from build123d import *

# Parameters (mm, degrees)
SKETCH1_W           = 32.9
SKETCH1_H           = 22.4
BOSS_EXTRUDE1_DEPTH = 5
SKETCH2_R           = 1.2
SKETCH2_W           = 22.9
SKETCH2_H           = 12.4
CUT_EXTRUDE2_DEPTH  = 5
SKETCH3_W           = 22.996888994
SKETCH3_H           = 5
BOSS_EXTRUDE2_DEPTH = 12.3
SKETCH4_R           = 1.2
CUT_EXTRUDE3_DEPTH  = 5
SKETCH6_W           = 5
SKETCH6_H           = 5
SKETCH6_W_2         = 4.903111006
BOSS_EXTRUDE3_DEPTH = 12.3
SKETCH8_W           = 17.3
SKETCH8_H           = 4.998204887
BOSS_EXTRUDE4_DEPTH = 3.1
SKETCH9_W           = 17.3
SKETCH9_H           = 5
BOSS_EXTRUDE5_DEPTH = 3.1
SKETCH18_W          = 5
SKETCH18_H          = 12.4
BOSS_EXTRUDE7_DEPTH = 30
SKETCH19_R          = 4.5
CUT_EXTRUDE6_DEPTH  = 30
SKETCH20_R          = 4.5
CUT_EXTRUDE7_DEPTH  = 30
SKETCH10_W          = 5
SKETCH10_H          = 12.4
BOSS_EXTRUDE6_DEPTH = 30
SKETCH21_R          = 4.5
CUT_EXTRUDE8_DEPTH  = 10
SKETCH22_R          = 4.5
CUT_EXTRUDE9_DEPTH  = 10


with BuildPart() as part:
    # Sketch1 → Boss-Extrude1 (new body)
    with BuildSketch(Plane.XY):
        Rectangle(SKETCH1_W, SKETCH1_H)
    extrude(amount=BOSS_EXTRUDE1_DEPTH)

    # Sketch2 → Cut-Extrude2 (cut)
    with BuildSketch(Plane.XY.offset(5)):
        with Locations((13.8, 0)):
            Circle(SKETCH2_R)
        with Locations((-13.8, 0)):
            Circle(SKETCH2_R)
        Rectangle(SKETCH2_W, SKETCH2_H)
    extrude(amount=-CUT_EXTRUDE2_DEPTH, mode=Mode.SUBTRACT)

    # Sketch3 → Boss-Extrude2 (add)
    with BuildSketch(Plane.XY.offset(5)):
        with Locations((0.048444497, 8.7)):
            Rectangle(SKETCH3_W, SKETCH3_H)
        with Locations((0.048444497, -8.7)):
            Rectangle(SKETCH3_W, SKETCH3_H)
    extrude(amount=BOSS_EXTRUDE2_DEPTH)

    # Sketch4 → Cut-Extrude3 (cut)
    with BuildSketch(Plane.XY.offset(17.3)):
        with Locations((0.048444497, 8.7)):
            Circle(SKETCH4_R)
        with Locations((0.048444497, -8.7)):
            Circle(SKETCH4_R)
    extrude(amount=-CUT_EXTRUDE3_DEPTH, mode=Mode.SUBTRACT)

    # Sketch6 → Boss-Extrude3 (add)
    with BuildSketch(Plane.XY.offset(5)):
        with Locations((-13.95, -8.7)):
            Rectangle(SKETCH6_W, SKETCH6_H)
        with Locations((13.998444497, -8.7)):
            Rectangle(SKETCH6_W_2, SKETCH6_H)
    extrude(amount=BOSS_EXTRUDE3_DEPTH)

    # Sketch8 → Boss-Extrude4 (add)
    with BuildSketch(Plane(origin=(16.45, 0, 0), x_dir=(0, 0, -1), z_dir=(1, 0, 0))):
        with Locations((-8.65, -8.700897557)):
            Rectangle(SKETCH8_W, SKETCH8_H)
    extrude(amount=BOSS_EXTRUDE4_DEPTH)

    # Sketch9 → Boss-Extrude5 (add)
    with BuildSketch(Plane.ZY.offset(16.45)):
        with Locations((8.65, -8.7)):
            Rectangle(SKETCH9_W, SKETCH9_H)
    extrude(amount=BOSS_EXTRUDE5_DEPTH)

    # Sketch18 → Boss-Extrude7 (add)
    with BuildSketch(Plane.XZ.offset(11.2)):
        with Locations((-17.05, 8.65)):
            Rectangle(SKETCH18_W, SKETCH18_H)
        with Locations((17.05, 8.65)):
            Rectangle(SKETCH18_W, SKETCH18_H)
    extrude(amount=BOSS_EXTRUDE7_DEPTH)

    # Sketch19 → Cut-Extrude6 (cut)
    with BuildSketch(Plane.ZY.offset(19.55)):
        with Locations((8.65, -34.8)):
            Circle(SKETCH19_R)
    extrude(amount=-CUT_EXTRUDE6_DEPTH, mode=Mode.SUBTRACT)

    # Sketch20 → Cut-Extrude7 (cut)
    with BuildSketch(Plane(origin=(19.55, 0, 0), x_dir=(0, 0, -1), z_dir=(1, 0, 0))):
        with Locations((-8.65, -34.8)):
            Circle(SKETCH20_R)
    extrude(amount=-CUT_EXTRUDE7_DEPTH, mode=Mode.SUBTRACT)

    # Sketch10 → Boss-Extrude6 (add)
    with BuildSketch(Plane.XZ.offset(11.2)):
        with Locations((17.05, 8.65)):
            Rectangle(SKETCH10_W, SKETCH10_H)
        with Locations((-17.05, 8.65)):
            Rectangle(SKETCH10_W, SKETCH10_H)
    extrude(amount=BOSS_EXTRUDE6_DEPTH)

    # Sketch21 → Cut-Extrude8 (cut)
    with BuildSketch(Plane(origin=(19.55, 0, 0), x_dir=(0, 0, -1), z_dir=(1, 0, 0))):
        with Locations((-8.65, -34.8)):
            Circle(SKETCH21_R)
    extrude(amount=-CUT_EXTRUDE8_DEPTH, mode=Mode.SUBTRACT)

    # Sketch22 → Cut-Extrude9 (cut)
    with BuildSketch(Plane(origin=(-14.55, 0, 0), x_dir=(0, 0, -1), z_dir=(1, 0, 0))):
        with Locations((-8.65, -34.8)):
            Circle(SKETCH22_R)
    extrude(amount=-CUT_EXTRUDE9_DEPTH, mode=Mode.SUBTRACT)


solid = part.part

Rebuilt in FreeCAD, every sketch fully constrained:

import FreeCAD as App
import Part
import Sketcher


def add_polygon(sketch, points):
    """Adds a closed chain of lines whose ends are joined by coincident constraints."""
    first, n = sketch.GeometryCount, len(points)
    for a, b in zip(points, points[1:] + points[:1]):
        sketch.addGeometry(Part.LineSegment(App.Vector(*a, 0), App.Vector(*b, 0)), False)
    for i in range(n):
        sketch.addConstraint(Sketcher.Constraint("Coincident", first + i, 2, first + (i + 1) % n, 1))

doc = App.newDocument("Part")
params = doc.addObject("Spreadsheet::Sheet", "Params")
for row, (alias, value) in enumerate([
    ("sketch1_width", "32.9 mm"),
    ("sketch1_height", "22.4 mm"),
    ("pad1_length", "5 mm"),
    ("sketch2_diameter", "2.4 mm"),
    ("sketch2_width", "22.9 mm"),
    ("sketch2_height", "12.4 mm"),
    ("pocket1_length", "5 mm"),
    ("sketch3_height", "5 mm"),
    ("pad2_length", "12.3 mm"),
    ("sketch4_diameter", "2.4 mm"),
    ("pocket2_length", "5 mm"),
    ("sketch5_width", "5 mm"),
    ("pad3_length", "12.3 mm"),
    ("sketch6_height", "17.3 mm"),
    ("pad4_length", "3.1 mm"),
    ("sketch7_width", "5 mm"),
    ("sketch7_height", "17.3 mm"),
    ("pad5_length", "3.1 mm"),
    ("sketch8_width", "5 mm"),
    ("sketch8_height", "12.4 mm"),
    ("pad6_length", "30 mm"),
    ("sketch9_diameter", "9 mm"),
    ("pocket3_length", "30 mm"),
    ("sketch10_diameter", "9 mm"),
    ("pocket4_length", "30 mm"),
    ("sketch11_width", "5 mm"),
    ("sketch11_height", "12.4 mm"),
    ("pad7_length", "30 mm"),
    ("sketch12_diameter", "9 mm"),
    ("pocket5_length", "10 mm"),
    ("sketch13_diameter", "9 mm"),
    ("pocket6_length", "10 mm"),
], start=1):
    params.set(f"A{row}", alias)
    params.set(f"B{row}", "=" + value)
    params.setAlias(f"B{row}", alias)

body = doc.addObject("PartDesign::Body", "Body")

# Sketch on XY plane
sketch1 = body.newObject("Sketcher::SketchObject", "Sketch")
sketch1.AttachmentSupport = (doc.getObject("XY_Plane"), [""])
sketch1.MapMode = "FlatFace"
add_polygon(sketch1, [(-16.45, 11.2), (-16.45, -11.2), (16.45, -11.2), (16.45, 11.2)])  # lines 0-3
sketch1.addConstraint([
    Sketcher.Constraint("Vertical", 0),
    Sketcher.Constraint("Horizontal", 1),
    Sketcher.Constraint("Vertical", 2),
    Sketcher.Constraint("Horizontal", 3),
    Sketcher.Constraint("Symmetric", 0, 2, 2, 2, -1, 1),
    Sketcher.Constraint("DistanceX", 1, 1, 1, 2, 32.9),
    Sketcher.Constraint("DistanceY", 0, 2, 0, 1, 22.4),
])
sketch1.setExpression("Constraints[9]", "Params.sketch1_width")
sketch1.setExpression("Constraints[10]", "Params.sketch1_height")
pad1 = body.newObject("PartDesign::Pad", "Pad")
pad1.Profile = sketch1
pad1.setExpression("Length", "Params.pad1_length")

# Sketch on XY plane
sketch2 = body.newObject("Sketcher::SketchObject", "Sketch001")
sketch2.AttachmentSupport = (doc.getObject("XY_Plane"), [""])
sketch2.MapMode = "FlatFace"
sketch2.AttachmentOffset = App.Placement(App.Vector(0, 0, 5), App.Rotation())
sketch2.addGeometry(Part.Circle(App.Vector(13.8, 0, 0), App.Vector(0, 0, 1), 1.2), False)  # 0
sketch2.addGeometry(Part.Circle(App.Vector(-13.8, 0, 0), App.Vector(0, 0, 1), 1.2), False)  # 1
add_polygon(sketch2, [(-11.45, 6.2), (-11.45, -6.2), (11.45, -6.2), (11.45, 6.2)])  # lines 2-5
sketch2.addConstraint([
    Sketcher.Constraint("Vertical", 2),
    Sketcher.Constraint("Horizontal", 3),
    Sketcher.Constraint("Vertical", 4),
    Sketcher.Constraint("Horizontal", 5),
    Sketcher.Constraint("Equal", 0, 1),
    Sketcher.Constraint("Symmetric", 0, 3, 1, 3, -1, 1),
    Sketcher.Constraint("Symmetric", 2, 2, 4, 2, -1, 1),
    Sketcher.Constraint("PointOnObject", 0, 3, -1),
    Sketcher.Constraint("Diameter", 0, 2.4),
    Sketcher.Constraint("DistanceX", 3, 1, 3, 2, 22.9),
    Sketcher.Constraint("DistanceY", 2, 2, 2, 1, 12.4),
    Sketcher.Constraint("DistanceX", -1, 1, 0, 3, 13.8),
])
sketch2.setExpression("Constraints[12]", "Params.sketch2_diameter")
sketch2.setExpression("Constraints[13]", "Params.sketch2_width")
sketch2.setExpression("Constraints[14]", "Params.sketch2_height")
pocket1 = body.newObject("PartDesign::Pocket", "Pocket")
pocket1.Profile = sketch2
pocket1.setExpression("Length", "Params.pocket1_length")

# Sketch on XY plane
sketch3 = body.newObject("Sketcher::SketchObject", "Sketch002")
sketch3.AttachmentSupport = (doc.getObject("XY_Plane"), [""])
sketch3.MapMode = "FlatFace"
sketch3.AttachmentOffset = App.Placement(App.Vector(0, 0, 5), App.Rotation())
add_polygon(sketch3, [(-11.45, 11.2), (-11.45, 6.2), (11.546889, 6.2), (11.546889, 11.2)])  # lines 0-3
add_polygon(sketch3, [(-11.45, -6.2), (-11.45, -11.2), (11.546889, -11.2), (11.546889, -6.2)])  # lines 4-7
sketch3.addConstraint([
    Sketcher.Constraint("Vertical", 0),
    Sketcher.Constraint("Horizontal", 1),
    Sketcher.Constraint("Vertical", 2),
    Sketcher.Constraint("Horizontal", 3),
    Sketcher.Constraint("Vertical", 4),
    Sketcher.Constraint("Horizontal", 5),
    Sketcher.Constraint("Vertical", 6),
    Sketcher.Constraint("Horizontal", 7),
    Sketcher.Constraint("Symmetric", 3, 2, 4, 2, -1),
    Sketcher.Constraint("Symmetric", 1, 2, 6, 2, -1),
    Sketcher.Constraint("DistanceY", 0, 2, 0, 1, 5.0),
    Sketcher.Constraint("DistanceY", -1, 1, 0, 2, 6.2),
    Sketcher.Constraint("DistanceX", 0, 2, -1, 1, 11.45),
    Sketcher.Constraint("DistanceX", 1, 1, 1, 2, 22.996889),
])
sketch3.setExpression("Constraints[18]", "Params.sketch3_height")
pad2 = body.newObject("PartDesign::Pad", "Pad001")
pad2.Profile = sketch3
pad2.setExpression("Length", "Params.pad2_length")

# Sketch on XY plane
sketch4 = body.newObject("Sketcher::SketchObject", "Sketch003")
sketch4.AttachmentSupport = (doc.getObject("XY_Plane"), [""])
sketch4.MapMode = "FlatFace"
sketch4.AttachmentOffset = App.Placement(App.Vector(0, 0, 17.3), App.Rotation())
sketch4.addGeometry([
    Part.Circle(App.Vector(0.048444, 8.7, 0), App.Vector(0, 0, 1), 1.2),
    Part.Circle(App.Vector(0.048444, -8.7, 0), App.Vector(0, 0, 1), 1.2),
], False)
sketch4.addConstraint([
    Sketcher.Constraint("Equal", 0, 1),
    Sketcher.Constraint("Symmetric", 0, 3, 1, 3, -1),
    Sketcher.Constraint("Diameter", 0, 2.4),
    Sketcher.Constraint("DistanceY", -1, 1, 0, 3, 8.7),
    Sketcher.Constraint("DistanceX", -1, 1, 0, 3, 0.048444),
])
sketch4.setExpression("Constraints[2]", "Params.sketch4_diameter")
pocket2 = body.newObject("PartDesign::Pocket", "Pocket001")
pocket2.Profile = sketch4
pocket2.setExpression("Length", "Params.pocket2_length")

# Sketch on XY plane
sketch5 = body.newObject("Sketcher::SketchObject", "Sketch004")
sketch5.AttachmentSupport = (doc.getObject("XY_Plane"), [""])
sketch5.MapMode = "FlatFace"
sketch5.AttachmentOffset = App.Placement(App.Vector(0, 0, 5), App.Rotation())
add_polygon(sketch5, [(-16.45, -6.2), (-16.45, -11.2), (-11.45, -11.2), (-11.45, -6.2)])  # lines 0-3
add_polygon(sketch5, [(11.546889, -6.2), (11.546889, -11.2), (16.45, -11.2), (16.45, -6.2)])  # lines 4-7
sketch5.addConstraint([
    Sketcher.Constraint("Vertical", 0),
    Sketcher.Constraint("Horizontal", 1),
    Sketcher.Constraint("Vertical", 2),
    Sketcher.Constraint("Horizontal", 3),
    Sketcher.Constraint("Vertical", 4),
    Sketcher.Constraint("Horizontal", 5),
    Sketcher.Constraint("Vertical", 6),
    Sketcher.Constraint("Horizontal", 7),
    Sketcher.Constraint("Symmetric", 0, 2, 5, 2, -2),
    Sketcher.Constraint("Horizontal", 3, 2, 6, 2),
    Sketcher.Constraint("Equal", 3, 0),
    Sketcher.Constraint("DistanceX", 1, 1, 1, 2, 5.0),
    Sketcher.Constraint("DistanceY", 0, 2, -1, 1, 11.2),
    Sketcher.Constraint("DistanceX", 1, 2, 5, 2, 27.9),
    Sketcher.Constraint("DistanceX", 5, 1, 5, 2, 4.903111),
])
sketch5.setExpression("Constraints[19]", "Params.sketch5_width")
pad3 = body.newObject("PartDesign::Pad", "Pad002")
pad3.Profile = sketch5
pad3.setExpression("Length", "Params.pad3_length")

# Sketch on YZ plane
sketch6 = body.newObject("Sketcher::SketchObject", "Sketch005")
sketch6.AttachmentSupport = (doc.getObject("YZ_Plane"), [""])
sketch6.MapMode = "FlatFace"
sketch6.AttachmentOffset = App.Placement(App.Vector(0, 0, 16.45), App.Rotation())
add_polygon(sketch6, [(-6.201795, 17.3), (-11.2, 17.3), (-11.2, 0), (-6.201795, 0)])  # lines 0-3
sketch6.addConstraint([
    Sketcher.Constraint("Horizontal", 0),
    Sketcher.Constraint("Vertical", 1),
    Sketcher.Constraint("Horizontal", 2),
    Sketcher.Constraint("Vertical", 3),
    Sketcher.Constraint("PointOnObject", 1, 2, -1),
    Sketcher.Constraint("DistanceY", 1, 2, 1, 1, 17.3),
    Sketcher.Constraint("DistanceX", 0, 2, -1, 1, 11.2),
    Sketcher.Constraint("DistanceX", 0, 2, 0, 1, 4.998205),
])
sketch6.setExpression("Constraints[9]", "Params.sketch6_height")
pad4 = body.newObject("PartDesign::Pad", "Pad003")
pad4.Profile = sketch6
pad4.setExpression("Length", "Params.pad4_length")

# Sketch on YZ plane
sketch7 = body.newObject("Sketcher::SketchObject", "Sketch006")
sketch7.AttachmentSupport = (doc.getObject("YZ_Plane"), [""])
sketch7.MapMode = "FlatFace"
sketch7.AttachmentOffset = App.Placement(App.Vector(0, 0, -16.45), App.Rotation())
add_polygon(sketch7, [(-6.2, 0), (-11.2, 0), (-11.2, 17.3), (-6.2, 17.3)])  # lines 0-3
sketch7.addConstraint([
    Sketcher.Constraint("Horizontal", 0),
    Sketcher.Constraint("Vertical", 1),
    Sketcher.Constraint("Horizontal", 2),
    Sketcher.Constraint("Vertical", 3),
    Sketcher.Constraint("PointOnObject", 0, 2, -1),
    Sketcher.Constraint("DistanceX", 0, 2, 0, 1, 5.0),
    Sketcher.Constraint("DistanceY", 1, 1, 1, 2, 17.3),
    Sketcher.Constraint("DistanceX", 0, 2, -1, 1, 11.2),
])
sketch7.setExpression("Constraints[9]", "Params.sketch7_width")
sketch7.setExpression("Constraints[10]", "Params.sketch7_height")
pad5 = body.newObject("PartDesign::Pad", "Pad004")
pad5.Profile = sketch7
pad5.setExpression("Length", "Params.pad5_length")
pad5.Reversed = True

# Sketch on XZ plane
sketch8 = body.newObject("Sketcher::SketchObject", "Sketch007")
sketch8.AttachmentSupport = (doc.getObject("XZ_Plane"), [""])
sketch8.MapMode = "FlatFace"
sketch8.AttachmentOffset = App.Placement(App.Vector(0, 0, 11.2), App.Rotation())
add_polygon(sketch8, [(-19.55, 14.85), (-19.55, 2.45), (-14.55, 2.45), (-14.55, 14.85)])  # lines 0-3
add_polygon(sketch8, [(14.55, 14.85), (14.55, 2.45), (19.55, 2.45), (19.55, 14.85)])  # lines 4-7
sketch8.addConstraint([
    Sketcher.Constraint("Vertical", 0),
    Sketcher.Constraint("Horizontal", 1),
    Sketcher.Constraint("Vertical", 2),
    Sketcher.Constraint("Horizontal", 3),
    Sketcher.Constraint("Vertical", 4),
    Sketcher.Constraint("Horizontal", 5),
    Sketcher.Constraint("Vertical", 6),
    Sketcher.Constraint("Horizontal", 7),
    Sketcher.Constraint("Symmetric", 1, 2, 4, 2, -2),
    Sketcher.Constraint("Symmetric", 3, 2, 6, 2, -2),
    Sketcher.Constraint("DistanceX", 1, 1, 1, 2, 5.0),
    Sketcher.Constraint("DistanceY", 0, 2, 0, 1, 12.4),
    Sketcher.Constraint("DistanceX", 1, 2, 4, 2, 29.1),
    Sketcher.Constraint("DistanceY", -1, 1, 0, 2, 2.45),
])
sketch8.setExpression("Constraints[18]", "Params.sketch8_width")
sketch8.setExpression("Constraints[19]", "Params.sketch8_height")
pad6 = body.newObject("PartDesign::Pad", "Pad005")
pad6.Profile = sketch8
pad6.setExpression("Length", "Params.pad6_length")

# Sketch on YZ plane
sketch9 = body.newObject("Sketcher::SketchObject", "Sketch008")
sketch9.AttachmentSupport = (doc.getObject("YZ_Plane"), [""])
sketch9.MapMode = "FlatFace"
sketch9.AttachmentOffset = App.Placement(App.Vector(0, 0, -19.55), App.Rotation())
sketch9.addGeometry(Part.Circle(App.Vector(-34.8, 8.65, 0), App.Vector(0, 0, 1), 4.5), False)
sketch9.addConstraint([
    Sketcher.Constraint("Diameter", 0, 9.0),
    Sketcher.Constraint("DistanceX", 0, 3, -1, 1, 34.8),
    Sketcher.Constraint("DistanceY", -1, 1, 0, 3, 8.65),
])
sketch9.setExpression("Constraints[0]", "Params.sketch9_diameter")
pocket3 = body.newObject("PartDesign::Pocket", "Pocket002")
pocket3.Profile = sketch9
pocket3.setExpression("Length", "Params.pocket3_length")
pocket3.Reversed = True

# Sketch on YZ plane
sketch10 = body.newObject("Sketcher::SketchObject", "Sketch009")
sketch10.AttachmentSupport = (doc.getObject("YZ_Plane"), [""])
sketch10.MapMode = "FlatFace"
sketch10.AttachmentOffset = App.Placement(App.Vector(0, 0, 19.55), App.Rotation())
sketch10.addGeometry(Part.Circle(App.Vector(-34.8, 8.65, 0), App.Vector(0, 0, 1), 4.5), False)
sketch10.addConstraint([
    Sketcher.Constraint("Diameter", 0, 9.0),
    Sketcher.Constraint("DistanceX", 0, 3, -1, 1, 34.8),
    Sketcher.Constraint("DistanceY", -1, 1, 0, 3, 8.65),
])
sketch10.setExpression("Constraints[0]", "Params.sketch10_diameter")
pocket4 = body.newObject("PartDesign::Pocket", "Pocket003")
pocket4.Profile = sketch10
pocket4.setExpression("Length", "Params.pocket4_length")

# Sketch on XZ plane
sketch11 = body.newObject("Sketcher::SketchObject", "Sketch010")
sketch11.AttachmentSupport = (doc.getObject("XZ_Plane"), [""])
sketch11.MapMode = "FlatFace"
sketch11.AttachmentOffset = App.Placement(App.Vector(0, 0, 11.2), App.Rotation())
add_polygon(sketch11, [(14.55, 14.85), (14.55, 2.45), (19.55, 2.45), (19.55, 14.85)])  # lines 0-3
add_polygon(sketch11, [(-19.55, 14.85), (-19.55, 2.45), (-14.55, 2.45), (-14.55, 14.85)])  # lines 4-7
sketch11.addConstraint([
    Sketcher.Constraint("Vertical", 0),
    Sketcher.Constraint("Horizontal", 1),
    Sketcher.Constraint("Vertical", 2),
    Sketcher.Constraint("Horizontal", 3),
    Sketcher.Constraint("Vertical", 4),
    Sketcher.Constraint("Horizontal", 5),
    Sketcher.Constraint("Vertical", 6),
    Sketcher.Constraint("Horizontal", 7),
    Sketcher.Constraint("Symmetric", 1, 2, 4, 2, -2),
    Sketcher.Constraint("Symmetric", 3, 2, 6, 2, -2),
    Sketcher.Constraint("DistanceX", 1, 1, 1, 2, 5.0),
    Sketcher.Constraint("DistanceY", 0, 2, 0, 1, 12.4),
    Sketcher.Constraint("DistanceX", 4, 2, 0, 2, 34.1),
    Sketcher.Constraint("DistanceY", -1, 1, 0, 2, 2.45),
])
sketch11.setExpression("Constraints[18]", "Params.sketch11_width")
sketch11.setExpression("Constraints[19]", "Params.sketch11_height")
pad7 = body.newObject("PartDesign::Pad", "Pad006")
pad7.Profile = sketch11
pad7.setExpression("Length", "Params.pad7_length")

# Sketch on YZ plane
sketch12 = body.newObject("Sketcher::SketchObject", "Sketch011")
sketch12.AttachmentSupport = (doc.getObject("YZ_Plane"), [""])
sketch12.MapMode = "FlatFace"
sketch12.AttachmentOffset = App.Placement(App.Vector(0, 0, 19.55), App.Rotation())
sketch12.addGeometry(Part.Circle(App.Vector(-34.8, 8.65, 0), App.Vector(0, 0, 1), 4.5), False)
sketch12.addConstraint([
    Sketcher.Constraint("Diameter", 0, 9.0),
    Sketcher.Constraint("DistanceX", 0, 3, -1, 1, 34.8),
    Sketcher.Constraint("DistanceY", -1, 1, 0, 3, 8.65),
])
sketch12.setExpression("Constraints[0]", "Params.sketch12_diameter")
pocket5 = body.newObject("PartDesign::Pocket", "Pocket004")
pocket5.Profile = sketch12
pocket5.setExpression("Length", "Params.pocket5_length")

# Sketch on YZ plane
sketch13 = body.newObject("Sketcher::SketchObject", "Sketch012")
sketch13.AttachmentSupport = (doc.getObject("YZ_Plane"), [""])
sketch13.MapMode = "FlatFace"
sketch13.AttachmentOffset = App.Placement(App.Vector(0, 0, -14.55), App.Rotation())
sketch13.addGeometry(Part.Circle(App.Vector(-34.8, 8.65, 0), App.Vector(0, 0, 1), 4.5), False)
sketch13.addConstraint([
    Sketcher.Constraint("Diameter", 0, 9.0),
    Sketcher.Constraint("DistanceX", 0, 3, -1, 1, 34.8),
    Sketcher.Constraint("DistanceY", -1, 1, 0, 3, 8.65),
])
sketch13.setExpression("Constraints[0]", "Params.sketch13_diameter")
pocket6 = body.newObject("PartDesign::Pocket", "Pocket005")
pocket6.Profile = sketch13
pocket6.setExpression("Length", "Params.pocket6_length")

doc.recompute()
